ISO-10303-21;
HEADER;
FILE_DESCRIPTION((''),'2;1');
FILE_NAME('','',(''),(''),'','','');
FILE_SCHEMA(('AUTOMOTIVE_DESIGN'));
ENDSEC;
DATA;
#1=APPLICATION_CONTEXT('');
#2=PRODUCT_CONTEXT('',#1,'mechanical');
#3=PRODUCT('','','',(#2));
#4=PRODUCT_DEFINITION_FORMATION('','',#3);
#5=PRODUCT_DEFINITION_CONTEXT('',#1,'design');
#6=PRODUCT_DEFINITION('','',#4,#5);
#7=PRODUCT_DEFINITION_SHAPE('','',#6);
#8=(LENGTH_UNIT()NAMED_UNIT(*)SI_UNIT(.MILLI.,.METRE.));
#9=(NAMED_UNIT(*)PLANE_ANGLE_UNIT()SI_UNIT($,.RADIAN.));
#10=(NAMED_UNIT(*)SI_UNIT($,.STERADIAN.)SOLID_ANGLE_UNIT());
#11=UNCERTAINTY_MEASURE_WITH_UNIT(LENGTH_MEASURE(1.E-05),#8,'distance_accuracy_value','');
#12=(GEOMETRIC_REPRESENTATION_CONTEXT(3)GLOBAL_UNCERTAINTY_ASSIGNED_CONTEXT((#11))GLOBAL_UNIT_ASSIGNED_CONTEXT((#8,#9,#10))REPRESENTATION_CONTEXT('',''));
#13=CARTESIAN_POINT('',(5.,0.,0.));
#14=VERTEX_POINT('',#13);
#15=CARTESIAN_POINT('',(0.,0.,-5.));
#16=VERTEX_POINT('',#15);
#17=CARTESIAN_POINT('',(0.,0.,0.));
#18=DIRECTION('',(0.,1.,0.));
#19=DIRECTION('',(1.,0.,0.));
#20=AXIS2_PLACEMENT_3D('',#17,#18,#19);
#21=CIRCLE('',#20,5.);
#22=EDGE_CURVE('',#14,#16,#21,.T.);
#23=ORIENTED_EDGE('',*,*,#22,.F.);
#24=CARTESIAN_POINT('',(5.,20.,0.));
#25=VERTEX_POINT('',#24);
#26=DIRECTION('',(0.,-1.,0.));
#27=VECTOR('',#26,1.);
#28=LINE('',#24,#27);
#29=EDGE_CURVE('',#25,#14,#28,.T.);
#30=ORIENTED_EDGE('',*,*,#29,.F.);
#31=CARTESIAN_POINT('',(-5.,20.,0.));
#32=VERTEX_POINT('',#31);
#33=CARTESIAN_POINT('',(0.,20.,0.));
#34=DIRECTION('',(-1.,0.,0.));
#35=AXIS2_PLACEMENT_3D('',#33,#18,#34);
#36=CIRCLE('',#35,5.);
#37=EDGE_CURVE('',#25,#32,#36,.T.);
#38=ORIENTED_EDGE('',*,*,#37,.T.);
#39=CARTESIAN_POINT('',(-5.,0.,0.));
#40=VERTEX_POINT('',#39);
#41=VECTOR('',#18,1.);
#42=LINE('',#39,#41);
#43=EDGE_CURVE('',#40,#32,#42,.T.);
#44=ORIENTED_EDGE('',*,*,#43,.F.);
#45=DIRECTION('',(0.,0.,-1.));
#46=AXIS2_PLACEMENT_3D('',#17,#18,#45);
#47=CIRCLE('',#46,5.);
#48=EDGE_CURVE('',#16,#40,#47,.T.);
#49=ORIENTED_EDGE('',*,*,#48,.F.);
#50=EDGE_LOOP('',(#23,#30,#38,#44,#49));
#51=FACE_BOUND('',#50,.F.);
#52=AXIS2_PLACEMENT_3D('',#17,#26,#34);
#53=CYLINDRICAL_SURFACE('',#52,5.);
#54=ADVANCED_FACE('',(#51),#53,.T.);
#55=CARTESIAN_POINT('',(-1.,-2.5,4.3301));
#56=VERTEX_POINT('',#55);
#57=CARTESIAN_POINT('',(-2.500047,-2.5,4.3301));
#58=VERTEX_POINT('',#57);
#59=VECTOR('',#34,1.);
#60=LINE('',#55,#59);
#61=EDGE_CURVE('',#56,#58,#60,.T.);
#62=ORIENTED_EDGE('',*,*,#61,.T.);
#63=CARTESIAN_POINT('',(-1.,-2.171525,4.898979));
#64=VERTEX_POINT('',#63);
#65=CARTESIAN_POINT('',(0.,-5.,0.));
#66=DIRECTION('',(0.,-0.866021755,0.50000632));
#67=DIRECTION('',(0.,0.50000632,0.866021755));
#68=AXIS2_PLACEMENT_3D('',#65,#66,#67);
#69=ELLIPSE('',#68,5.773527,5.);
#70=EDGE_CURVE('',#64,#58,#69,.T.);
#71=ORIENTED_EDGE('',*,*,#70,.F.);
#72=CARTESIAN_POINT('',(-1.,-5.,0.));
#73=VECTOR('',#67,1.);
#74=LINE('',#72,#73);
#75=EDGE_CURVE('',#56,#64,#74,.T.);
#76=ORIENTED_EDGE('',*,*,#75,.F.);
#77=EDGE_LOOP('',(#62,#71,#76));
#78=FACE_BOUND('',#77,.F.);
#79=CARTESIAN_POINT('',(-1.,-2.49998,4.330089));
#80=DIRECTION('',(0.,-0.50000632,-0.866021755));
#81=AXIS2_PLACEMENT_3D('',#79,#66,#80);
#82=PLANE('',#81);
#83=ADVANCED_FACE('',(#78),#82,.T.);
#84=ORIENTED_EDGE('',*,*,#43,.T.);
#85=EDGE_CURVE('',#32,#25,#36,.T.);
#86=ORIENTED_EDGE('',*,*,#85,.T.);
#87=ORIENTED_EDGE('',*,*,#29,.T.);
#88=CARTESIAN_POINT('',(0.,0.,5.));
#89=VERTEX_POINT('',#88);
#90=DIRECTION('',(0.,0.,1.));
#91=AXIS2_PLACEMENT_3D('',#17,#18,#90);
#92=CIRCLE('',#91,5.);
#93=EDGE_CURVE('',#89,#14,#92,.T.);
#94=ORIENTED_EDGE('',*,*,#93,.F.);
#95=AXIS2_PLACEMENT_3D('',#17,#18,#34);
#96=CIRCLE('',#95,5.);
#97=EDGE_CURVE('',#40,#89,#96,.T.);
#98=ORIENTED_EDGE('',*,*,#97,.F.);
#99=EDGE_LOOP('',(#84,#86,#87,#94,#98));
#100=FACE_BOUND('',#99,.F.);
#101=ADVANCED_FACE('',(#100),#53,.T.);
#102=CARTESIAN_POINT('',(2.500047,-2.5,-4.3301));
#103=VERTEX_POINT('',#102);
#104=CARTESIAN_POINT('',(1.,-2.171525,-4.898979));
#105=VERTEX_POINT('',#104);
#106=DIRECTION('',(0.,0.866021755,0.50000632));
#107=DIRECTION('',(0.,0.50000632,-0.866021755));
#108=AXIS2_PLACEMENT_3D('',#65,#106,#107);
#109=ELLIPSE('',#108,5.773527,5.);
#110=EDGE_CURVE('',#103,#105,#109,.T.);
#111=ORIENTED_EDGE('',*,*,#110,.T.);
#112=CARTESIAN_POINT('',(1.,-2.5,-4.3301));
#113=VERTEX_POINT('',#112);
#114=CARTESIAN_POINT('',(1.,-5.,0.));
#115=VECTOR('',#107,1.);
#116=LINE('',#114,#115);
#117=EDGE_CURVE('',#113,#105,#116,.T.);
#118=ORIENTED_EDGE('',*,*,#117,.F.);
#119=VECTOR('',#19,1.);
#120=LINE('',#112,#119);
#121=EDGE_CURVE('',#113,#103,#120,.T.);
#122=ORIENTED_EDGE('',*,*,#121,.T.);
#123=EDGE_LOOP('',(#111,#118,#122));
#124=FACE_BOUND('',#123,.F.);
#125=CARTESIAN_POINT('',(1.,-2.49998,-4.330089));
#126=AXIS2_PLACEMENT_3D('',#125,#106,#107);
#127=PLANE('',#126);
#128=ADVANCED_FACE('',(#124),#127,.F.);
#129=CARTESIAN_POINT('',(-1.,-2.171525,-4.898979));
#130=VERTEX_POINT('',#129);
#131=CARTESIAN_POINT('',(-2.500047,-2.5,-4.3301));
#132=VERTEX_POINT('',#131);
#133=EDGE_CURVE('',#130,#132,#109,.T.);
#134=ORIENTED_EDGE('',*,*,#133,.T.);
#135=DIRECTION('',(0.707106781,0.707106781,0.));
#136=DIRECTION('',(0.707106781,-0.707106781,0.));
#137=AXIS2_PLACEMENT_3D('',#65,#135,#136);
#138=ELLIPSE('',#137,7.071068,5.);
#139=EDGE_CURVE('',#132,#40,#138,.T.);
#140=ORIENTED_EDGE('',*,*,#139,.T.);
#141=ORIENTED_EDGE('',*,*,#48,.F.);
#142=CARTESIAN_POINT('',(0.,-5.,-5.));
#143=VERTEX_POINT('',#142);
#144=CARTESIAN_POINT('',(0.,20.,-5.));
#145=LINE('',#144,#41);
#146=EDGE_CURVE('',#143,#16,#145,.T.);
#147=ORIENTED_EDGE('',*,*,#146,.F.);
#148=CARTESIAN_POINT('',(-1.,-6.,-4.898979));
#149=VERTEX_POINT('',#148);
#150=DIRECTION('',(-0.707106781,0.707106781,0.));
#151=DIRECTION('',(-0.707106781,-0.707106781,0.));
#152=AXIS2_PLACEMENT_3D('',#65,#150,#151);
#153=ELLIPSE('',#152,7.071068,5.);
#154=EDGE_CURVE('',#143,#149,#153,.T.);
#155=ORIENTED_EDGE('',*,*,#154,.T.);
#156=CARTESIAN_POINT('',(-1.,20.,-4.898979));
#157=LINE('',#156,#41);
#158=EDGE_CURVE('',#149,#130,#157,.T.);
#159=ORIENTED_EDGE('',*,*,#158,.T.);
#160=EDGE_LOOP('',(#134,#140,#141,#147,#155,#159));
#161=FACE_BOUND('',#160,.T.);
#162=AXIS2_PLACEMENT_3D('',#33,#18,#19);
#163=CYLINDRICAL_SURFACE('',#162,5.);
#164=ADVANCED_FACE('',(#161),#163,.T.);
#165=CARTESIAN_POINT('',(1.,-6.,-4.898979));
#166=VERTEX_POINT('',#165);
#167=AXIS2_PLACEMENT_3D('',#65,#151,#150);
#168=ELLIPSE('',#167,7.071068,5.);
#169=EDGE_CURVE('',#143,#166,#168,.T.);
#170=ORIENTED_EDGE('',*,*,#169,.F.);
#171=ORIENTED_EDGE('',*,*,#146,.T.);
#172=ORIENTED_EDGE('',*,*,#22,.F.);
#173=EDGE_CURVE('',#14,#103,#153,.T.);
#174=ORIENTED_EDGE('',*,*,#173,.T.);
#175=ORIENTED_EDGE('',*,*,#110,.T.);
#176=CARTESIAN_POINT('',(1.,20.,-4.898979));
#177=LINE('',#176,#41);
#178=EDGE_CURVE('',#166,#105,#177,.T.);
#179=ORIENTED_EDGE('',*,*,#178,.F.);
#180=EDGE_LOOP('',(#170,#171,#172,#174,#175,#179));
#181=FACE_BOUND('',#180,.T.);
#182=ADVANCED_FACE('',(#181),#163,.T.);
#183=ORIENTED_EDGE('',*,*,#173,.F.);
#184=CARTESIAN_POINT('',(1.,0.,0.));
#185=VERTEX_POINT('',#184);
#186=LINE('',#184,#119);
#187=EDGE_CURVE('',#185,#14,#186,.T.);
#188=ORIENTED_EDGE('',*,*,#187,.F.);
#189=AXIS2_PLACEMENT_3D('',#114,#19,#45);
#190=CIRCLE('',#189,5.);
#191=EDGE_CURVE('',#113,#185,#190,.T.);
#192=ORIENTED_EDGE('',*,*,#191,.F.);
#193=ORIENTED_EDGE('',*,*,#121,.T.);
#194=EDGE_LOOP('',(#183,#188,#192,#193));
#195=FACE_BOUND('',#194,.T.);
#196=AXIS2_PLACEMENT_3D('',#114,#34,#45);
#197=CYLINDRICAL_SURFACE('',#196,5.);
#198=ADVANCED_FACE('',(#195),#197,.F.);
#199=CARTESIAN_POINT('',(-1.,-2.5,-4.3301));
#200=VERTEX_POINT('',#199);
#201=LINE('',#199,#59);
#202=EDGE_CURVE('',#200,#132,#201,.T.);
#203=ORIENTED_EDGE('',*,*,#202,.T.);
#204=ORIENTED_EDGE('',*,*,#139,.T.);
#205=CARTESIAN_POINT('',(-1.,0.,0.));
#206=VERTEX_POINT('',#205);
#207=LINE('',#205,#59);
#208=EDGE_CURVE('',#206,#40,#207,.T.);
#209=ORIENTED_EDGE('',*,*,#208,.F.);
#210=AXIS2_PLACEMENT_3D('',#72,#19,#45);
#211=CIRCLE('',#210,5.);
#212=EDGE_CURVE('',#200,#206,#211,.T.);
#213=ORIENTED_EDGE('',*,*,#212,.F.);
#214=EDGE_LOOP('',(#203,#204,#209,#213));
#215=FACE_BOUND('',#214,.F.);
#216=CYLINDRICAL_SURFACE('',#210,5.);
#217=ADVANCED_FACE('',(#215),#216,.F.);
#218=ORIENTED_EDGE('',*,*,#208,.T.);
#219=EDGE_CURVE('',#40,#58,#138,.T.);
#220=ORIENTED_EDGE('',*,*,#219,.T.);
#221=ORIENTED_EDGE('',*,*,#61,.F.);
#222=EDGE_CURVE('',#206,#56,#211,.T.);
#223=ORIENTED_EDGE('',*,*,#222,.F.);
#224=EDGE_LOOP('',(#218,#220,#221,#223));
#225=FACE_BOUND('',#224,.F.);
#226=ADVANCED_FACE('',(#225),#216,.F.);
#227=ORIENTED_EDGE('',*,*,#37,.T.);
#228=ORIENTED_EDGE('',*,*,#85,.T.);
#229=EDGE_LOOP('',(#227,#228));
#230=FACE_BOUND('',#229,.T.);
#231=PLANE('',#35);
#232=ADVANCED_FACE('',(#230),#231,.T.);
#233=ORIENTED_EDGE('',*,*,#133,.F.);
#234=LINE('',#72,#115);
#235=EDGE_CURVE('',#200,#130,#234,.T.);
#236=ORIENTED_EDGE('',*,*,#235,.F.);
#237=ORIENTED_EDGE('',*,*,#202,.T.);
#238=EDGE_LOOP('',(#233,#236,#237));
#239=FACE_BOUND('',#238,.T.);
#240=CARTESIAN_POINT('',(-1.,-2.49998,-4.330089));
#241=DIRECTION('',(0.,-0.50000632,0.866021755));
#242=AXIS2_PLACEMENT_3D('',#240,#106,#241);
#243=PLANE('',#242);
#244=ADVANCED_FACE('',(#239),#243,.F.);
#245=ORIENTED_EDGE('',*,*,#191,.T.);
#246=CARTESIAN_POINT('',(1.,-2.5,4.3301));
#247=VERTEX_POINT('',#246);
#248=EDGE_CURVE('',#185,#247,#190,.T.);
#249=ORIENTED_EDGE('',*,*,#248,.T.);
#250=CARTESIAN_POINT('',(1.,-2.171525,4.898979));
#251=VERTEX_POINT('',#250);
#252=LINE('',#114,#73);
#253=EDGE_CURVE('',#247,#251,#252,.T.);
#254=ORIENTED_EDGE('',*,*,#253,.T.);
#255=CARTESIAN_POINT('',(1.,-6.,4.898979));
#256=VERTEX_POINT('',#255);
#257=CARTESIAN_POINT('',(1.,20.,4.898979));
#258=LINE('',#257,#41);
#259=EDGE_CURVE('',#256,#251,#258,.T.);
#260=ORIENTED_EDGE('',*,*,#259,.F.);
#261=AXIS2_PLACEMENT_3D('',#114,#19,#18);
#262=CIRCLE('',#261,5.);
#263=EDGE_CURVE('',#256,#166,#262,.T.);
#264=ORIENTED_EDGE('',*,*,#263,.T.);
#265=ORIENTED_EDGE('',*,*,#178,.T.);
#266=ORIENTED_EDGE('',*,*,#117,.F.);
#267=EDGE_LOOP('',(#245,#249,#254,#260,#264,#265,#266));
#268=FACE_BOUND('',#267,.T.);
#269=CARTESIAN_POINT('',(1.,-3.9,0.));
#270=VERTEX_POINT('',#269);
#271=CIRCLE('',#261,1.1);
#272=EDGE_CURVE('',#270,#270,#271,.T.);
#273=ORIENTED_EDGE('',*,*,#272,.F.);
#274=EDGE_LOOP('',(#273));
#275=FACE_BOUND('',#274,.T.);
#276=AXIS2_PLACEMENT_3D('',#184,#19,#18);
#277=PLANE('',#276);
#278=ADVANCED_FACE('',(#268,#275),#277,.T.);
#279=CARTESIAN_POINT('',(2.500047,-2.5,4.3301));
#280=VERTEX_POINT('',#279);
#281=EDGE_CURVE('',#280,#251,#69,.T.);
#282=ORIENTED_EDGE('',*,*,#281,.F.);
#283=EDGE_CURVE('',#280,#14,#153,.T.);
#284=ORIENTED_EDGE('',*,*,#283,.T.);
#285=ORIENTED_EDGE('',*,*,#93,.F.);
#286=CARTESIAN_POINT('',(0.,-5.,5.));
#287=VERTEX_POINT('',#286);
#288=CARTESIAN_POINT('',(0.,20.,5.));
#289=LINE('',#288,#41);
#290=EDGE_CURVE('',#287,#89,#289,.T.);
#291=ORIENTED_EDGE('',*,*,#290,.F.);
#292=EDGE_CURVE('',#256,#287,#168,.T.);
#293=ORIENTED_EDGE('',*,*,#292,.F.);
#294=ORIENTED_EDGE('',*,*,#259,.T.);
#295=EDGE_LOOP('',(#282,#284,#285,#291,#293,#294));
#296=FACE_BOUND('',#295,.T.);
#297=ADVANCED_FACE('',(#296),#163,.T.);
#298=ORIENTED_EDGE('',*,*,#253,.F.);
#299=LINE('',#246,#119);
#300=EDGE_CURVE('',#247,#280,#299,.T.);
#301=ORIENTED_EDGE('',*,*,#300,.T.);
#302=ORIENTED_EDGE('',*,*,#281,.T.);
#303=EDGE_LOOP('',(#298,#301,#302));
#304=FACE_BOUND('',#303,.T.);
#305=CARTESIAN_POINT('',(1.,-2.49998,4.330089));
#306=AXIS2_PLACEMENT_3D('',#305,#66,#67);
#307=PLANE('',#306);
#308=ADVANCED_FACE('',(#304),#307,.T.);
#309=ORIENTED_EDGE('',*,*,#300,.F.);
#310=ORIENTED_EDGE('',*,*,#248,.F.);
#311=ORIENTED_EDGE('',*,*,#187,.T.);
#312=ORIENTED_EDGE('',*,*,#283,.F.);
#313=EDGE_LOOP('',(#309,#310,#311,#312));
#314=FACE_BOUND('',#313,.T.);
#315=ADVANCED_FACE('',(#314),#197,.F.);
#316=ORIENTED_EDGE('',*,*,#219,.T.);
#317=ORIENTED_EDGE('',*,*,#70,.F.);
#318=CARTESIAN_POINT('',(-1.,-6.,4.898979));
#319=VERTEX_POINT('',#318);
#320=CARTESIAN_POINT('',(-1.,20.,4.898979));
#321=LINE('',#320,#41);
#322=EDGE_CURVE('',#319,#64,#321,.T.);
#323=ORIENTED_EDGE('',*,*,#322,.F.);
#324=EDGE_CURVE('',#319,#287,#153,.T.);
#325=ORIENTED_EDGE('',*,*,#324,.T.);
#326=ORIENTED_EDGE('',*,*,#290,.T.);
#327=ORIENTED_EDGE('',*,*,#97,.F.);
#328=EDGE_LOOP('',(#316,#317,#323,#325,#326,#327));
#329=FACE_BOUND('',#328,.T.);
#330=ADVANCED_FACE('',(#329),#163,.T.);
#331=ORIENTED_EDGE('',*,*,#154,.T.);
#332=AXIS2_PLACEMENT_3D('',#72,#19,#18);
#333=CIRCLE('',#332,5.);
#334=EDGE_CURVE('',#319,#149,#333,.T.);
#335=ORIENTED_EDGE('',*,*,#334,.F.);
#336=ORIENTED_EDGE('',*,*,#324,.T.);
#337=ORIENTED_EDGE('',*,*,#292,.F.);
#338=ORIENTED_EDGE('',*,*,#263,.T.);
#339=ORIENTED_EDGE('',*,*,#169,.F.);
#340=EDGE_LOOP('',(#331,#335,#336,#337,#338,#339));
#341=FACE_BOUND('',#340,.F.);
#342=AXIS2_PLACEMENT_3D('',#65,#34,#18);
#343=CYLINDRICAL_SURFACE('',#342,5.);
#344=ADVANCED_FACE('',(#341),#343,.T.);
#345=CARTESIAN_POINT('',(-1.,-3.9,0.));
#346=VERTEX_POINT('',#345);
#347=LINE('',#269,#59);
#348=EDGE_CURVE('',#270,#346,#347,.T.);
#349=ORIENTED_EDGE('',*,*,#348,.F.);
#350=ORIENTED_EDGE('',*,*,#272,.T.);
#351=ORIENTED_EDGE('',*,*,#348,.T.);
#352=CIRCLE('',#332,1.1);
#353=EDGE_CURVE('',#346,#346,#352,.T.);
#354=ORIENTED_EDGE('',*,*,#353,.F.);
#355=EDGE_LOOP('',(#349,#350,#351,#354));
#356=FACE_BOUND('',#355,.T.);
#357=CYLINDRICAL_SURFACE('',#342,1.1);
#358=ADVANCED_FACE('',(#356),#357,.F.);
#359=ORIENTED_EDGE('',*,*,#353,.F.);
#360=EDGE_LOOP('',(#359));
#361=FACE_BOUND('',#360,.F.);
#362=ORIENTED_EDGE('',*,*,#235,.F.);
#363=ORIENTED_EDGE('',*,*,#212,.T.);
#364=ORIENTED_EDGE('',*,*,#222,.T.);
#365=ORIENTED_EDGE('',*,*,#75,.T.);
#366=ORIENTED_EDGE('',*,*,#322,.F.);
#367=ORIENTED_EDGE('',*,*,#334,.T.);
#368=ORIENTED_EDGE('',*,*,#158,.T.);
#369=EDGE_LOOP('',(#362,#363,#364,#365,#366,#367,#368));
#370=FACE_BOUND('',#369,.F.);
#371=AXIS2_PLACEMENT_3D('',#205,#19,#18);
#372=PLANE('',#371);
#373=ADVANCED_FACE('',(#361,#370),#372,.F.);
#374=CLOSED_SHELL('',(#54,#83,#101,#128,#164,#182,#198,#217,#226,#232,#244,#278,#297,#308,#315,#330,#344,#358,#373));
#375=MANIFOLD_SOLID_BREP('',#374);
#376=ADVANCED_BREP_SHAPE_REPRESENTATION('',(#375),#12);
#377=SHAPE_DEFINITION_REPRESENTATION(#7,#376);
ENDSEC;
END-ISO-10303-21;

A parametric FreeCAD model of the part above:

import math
import FreeCAD as App
import Part
import Sketcher

V = App.Vector
Q = App.Units.Quantity

doc = App.newDocument("Part")
params = doc.addObject("Spreadsheet::Sheet", "Params")
for row, (alias, value) in enumerate([
    ("sketch1_diameter", "10 mm"),
    ("pad1_length", "20 mm"),
    ("sketch2_radius", "5 mm"),
    ("sketch2_diameter", "2.2 mm"),
    ("sketch2_width", "5 mm"),
    ("pad2_length", "2 mm"),
    ("sketch3_radius", "5 mm"),
    ("sketch3_height", "5 mm"),
    ("pad3_length", "5 mm"),
    ("sketch4_diameter", "20 mm"),
    ("sketch4_diameter2", "10 mm"),
], start=1):
    params.set(f"A{row}", alias)
    params.set(f"B{row}", "=" + value)
    params.setAlias(f"B{row}", alias)

body = doc.addObject("PartDesign::Body", "Body")

# Sketch on XZ plane
sketch1 = doc.addObject("Sketcher::SketchObject", "Sketch")
body.addObject(sketch1)
sketch1.AttachmentSupport = (doc.XZ_Plane, [""])
sketch1.MapMode = "FlatFace"
sketch1.addGeometry(Part.Circle(V(0, 0, 0), V(0, 0, 1), 5), False)
sketch1.addConstraint([
    Sketcher.Constraint("Coincident", 0, 3, -1, 1),
    Sketcher.Constraint("Diameter", 0, Q("10 mm")),
])
sketch1.setExpression("Constraints[1]", "Params.sketch1_diameter")
pad1 = doc.addObject("PartDesign::Pad", "Pad")
body.addObject(pad1)
pad1.Profile = sketch1
pad1.setExpression("Length", "Params.pad1_length")
pad1.Reversed = True

# Sketch on YZ plane
sketch2 = doc.addObject("Sketcher::SketchObject", "Sketch001")
body.addObject(sketch2)
sketch2.AttachmentSupport = (doc.YZ_Plane, [""])
sketch2.MapMode = "FlatFace"
sketch2.addGeometry([
    Part.LineSegment(V(-5, -5, 0), V(0, -5, 0)),  # 0
    Part.LineSegment(V(0, -5, 0), V(0, 5, 0)),  # 1
    Part.LineSegment(V(0, 5, 0), V(-5, 5, 0)),  # 2
    Part.ArcOfCircle(Part.Circle(V(-5, 0, 0), V(0, 0, 1), 5), math.radians(90), math.radians(270)),  # 3
    Part.Circle(V(-5, 0, 0), V(0, 0, 1), 1.1),  # 4
], False)
sketch2.addConstraint([
    Sketcher.Constraint("Coincident", 0, 2, 1, 1),
    Sketcher.Constraint("Coincident", 1, 2, 2, 1),
    Sketcher.Constraint("Tangent", 2, 2, 3, 1),
    Sketcher.Constraint("Tangent", 3, 2, 0, 1),
    Sketcher.Constraint("Horizontal", 0),
    Sketcher.Constraint("Vertical", 1),
    Sketcher.Constraint("Horizontal", 2),
    Sketcher.Constraint("Coincident", 4, 3, 3, 3),
    Sketcher.Constraint("Symmetric", 0, 2, 1, 2, -1, 1),
    Sketcher.Constraint("Radius", 3, Q("5 mm")),
    Sketcher.Constraint("Diameter", 4, Q("2.2 mm")),
    Sketcher.Constraint("DistanceX", 0, 1, 0, 2, Q("5 mm")),
])
sketch2.setExpression("Constraints[9]", "Params.sketch2_radius")
sketch2.setExpression("Constraints[10]", "Params.sketch2_diameter")
sketch2.setExpression("Constraints[11]", "Params.sketch2_width")
pad2 = doc.addObject("PartDesign::Pad", "Pad001")
body.addObject(pad2)
pad2.Profile = sketch2
pad2.setExpression("Length", "Params.pad2_length")
pad2.Midplane = True

# Sketch on YZ plane
sketch3 = doc.addObject("Sketcher::SketchObject", "Sketch002")
body.addObject(sketch3)
sketch3.AttachmentSupport = (doc.YZ_Plane, [""])
sketch3.MapMode = "FlatFace"
sketch3.AttachmentOffset = App.Placement(V(0, 0, 1), App.Rotation())
sketch3.addGeometry([
    Part.ArcOfCircle(Part.Circle(V(-5, 0, 0), V(0, 0, 1), 5), math.radians(-59.999845), math.radians(0)),  # 0
    Part.LineSegment(V(-2.49998, -4.330089, 0), V(-2.1132, -5, 0)),  # 1
    Part.LineSegment(V(-2.1132, -5, 0), V(0, -5, 0)),  # 2
    Part.LineSegment(V(0, -5, 0), V(0, 0, 0)),  # 3
    Part.LineSegment(V(-2.1132, 5, 0), V(-2.49998, 4.330089, 0)),  # 4
    Part.ArcOfCircle(Part.Circle(V(-5, 0, 0), V(0, 0, 1), 5), math.radians(0), math.radians(59.999845)),  # 5
    Part.LineSegment(V(0, 0, 0), V(0, 5, 0)),  # 6
    Part.LineSegment(V(0, 5, 0), V(-2.1132, 5, 0)),  # 7
], False)
sketch3.addConstraint([
    Sketcher.Constraint("Coincident", 0, 1, 1, 1),
    Sketcher.Constraint("Coincident", 1, 2, 2, 1),
    Sketcher.Constraint("Coincident", 2, 2, 3, 1),
    Sketcher.Constraint("Tangent", 3, 2, 0, 2),
    Sketcher.Constraint("Coincident", 4, 2, 5, 2),
    Sketcher.Constraint("Tangent", 5, 1, 6, 1),
    Sketcher.Constraint("Coincident", 6, 2, 7, 1),
    Sketcher.Constraint("Coincident", 7, 2, 4, 1),
    Sketcher.Constraint("Horizontal", 2),
    Sketcher.Constraint("Vertical", 3),
    Sketcher.Constraint("Vertical", 6),
    Sketcher.Constraint("Horizontal", 7),
    Sketcher.Constraint("Coincident", 3, 2, -1, 1),
    Sketcher.Constraint("Coincident", 5, 1, -1, 1),
    Sketcher.Constraint("Equal", 0, 5),
    Sketcher.Constraint("Symmetric", 1, 2, 7, 2, -1),
    Sketcher.Constraint("Vertical", 0, 1, 4, 2),
    Sketcher.Constraint("Radius", 0, Q("5 mm")),
    Sketcher.Constraint("DistanceY", 3, 1, 3, 2, Q("5 mm")),
    Sketcher.Constraint("Angle", 1, Q("-59.9996 deg")),
    Sketcher.Constraint("DistanceX", 2, 1, 2, 2, Q("2.1132 mm")),
])
sketch3.setExpression("Constraints[17]", "Params.sketch3_radius")
sketch3.setExpression("Constraints[18]", "Params.sketch3_height")
pad3 = doc.addObject("PartDesign::Pad", "Pad002")
body.addObject(pad3)
pad3.Profile = sketch3
pad3.setExpression("Length", "Params.pad3_length")
doc.recompute()

mirrored = doc.addObject("PartDesign::Mirrored", "Mirrored")
body.addObject(mirrored)
mirrored.Originals = [pad3]
mirrored.MirrorPlane = (doc.YZ_Plane, [""])
body.Tip = mirrored

# Sketch on XZ plane
sketch4 = doc.addObject("Sketcher::SketchObject", "Sketch003")
body.addObject(sketch4)
sketch4.AttachmentSupport = (doc.XZ_Plane, [""])
sketch4.MapMode = "FlatFace"
sketch4.AttachmentOffset = App.Placement(V(0, 0, -20), App.Rotation())
sketch4.addGeometry([
    Part.Circle(V(0, 0, 0), V(0, 0, 1), 10),
    Part.Circle(V(0, 0, 0), V(0, 0, 1), 5),
], False)
sketch4.addConstraint([
    Sketcher.Constraint("Coincident", 0, 3, -1, 1),
    Sketcher.Constraint("Coincident", 1, 3, -1, 1),
    Sketcher.Constraint("Diameter", 0, Q("20 mm")),
    Sketcher.Constraint("Diameter", 1, Q("10 mm")),
])
sketch4.setExpression("Constraints[2]", "Params.sketch4_diameter")
sketch4.setExpression("Constraints[3]", "Params.sketch4_diameter2")
pocket1 = doc.addObject("PartDesign::Pocket", "Pocket")
body.addObject(pocket1)
pocket1.Profile = sketch4
pocket1.Type = "ThroughAll"
pocket1.Reversed = True

doc.recompute()
